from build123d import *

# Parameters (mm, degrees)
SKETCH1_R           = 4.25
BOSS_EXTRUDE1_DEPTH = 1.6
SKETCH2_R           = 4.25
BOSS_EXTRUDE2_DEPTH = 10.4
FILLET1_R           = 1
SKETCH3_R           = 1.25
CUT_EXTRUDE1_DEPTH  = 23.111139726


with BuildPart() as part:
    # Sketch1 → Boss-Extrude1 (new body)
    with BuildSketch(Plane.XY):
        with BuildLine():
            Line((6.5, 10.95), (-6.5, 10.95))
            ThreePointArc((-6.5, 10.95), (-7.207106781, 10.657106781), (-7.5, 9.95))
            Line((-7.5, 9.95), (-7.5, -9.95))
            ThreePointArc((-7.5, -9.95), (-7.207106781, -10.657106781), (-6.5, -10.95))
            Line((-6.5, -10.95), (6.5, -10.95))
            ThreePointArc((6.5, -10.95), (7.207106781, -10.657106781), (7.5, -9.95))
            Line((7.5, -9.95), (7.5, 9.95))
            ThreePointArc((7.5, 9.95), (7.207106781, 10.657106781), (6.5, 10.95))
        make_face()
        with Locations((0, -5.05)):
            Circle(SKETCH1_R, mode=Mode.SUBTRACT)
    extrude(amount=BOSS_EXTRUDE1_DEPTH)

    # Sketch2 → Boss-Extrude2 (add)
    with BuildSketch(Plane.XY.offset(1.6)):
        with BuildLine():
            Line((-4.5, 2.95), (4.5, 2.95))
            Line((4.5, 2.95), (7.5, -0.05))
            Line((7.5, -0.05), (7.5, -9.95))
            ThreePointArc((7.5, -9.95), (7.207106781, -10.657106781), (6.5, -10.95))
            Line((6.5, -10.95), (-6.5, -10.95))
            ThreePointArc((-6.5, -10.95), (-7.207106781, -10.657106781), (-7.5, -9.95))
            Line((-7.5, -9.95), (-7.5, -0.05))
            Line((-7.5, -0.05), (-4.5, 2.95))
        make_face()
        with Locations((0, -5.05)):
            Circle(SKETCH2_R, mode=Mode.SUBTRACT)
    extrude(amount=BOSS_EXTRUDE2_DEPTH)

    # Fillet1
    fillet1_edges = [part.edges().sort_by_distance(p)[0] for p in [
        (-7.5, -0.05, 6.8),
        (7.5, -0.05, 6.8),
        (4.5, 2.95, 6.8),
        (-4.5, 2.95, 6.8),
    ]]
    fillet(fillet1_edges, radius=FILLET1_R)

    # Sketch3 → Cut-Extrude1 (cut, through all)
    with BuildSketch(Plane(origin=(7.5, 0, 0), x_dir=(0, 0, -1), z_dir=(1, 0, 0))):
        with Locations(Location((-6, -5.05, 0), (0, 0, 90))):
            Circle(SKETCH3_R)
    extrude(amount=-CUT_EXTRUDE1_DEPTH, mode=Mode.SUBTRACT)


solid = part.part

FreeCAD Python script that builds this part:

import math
import FreeCAD as App
import Part
import Sketcher


def edges_at(feature, points):
    """Names of the edges that pass closest to the given points."""
    edges = feature.Shape.Edges
    near = lambda p: min(range(len(edges)), key=lambda i: edges[i].distToShape(Part.Vertex(*p))[0])
    return sorted({f"Edge{near(p) + 1}" for p in points})

doc = App.newDocument("Part")
body = doc.addObject("PartDesign::Body", "Body")

sketch1 = body.newObject("Sketcher::SketchObject", "Sketch")
sketch1.AttachmentSupport = (doc.getObject("XY_Plane"), [""])
sketch1.MapMode = "FlatFace"
sketch1.addGeometry(Part.LineSegment(App.Vector(6.5, 10.9, 0), App.Vector(-6.5, 10.9, 0)), False)
sketch1.addGeometry(Part.ArcOfCircle(Part.Circle(App.Vector(-6.5, 9.9, 0), App.Vector(0, 0, 1), 1), math.radians(90), math.radians(180)), False)
sketch1.addGeometry(Part.LineSegment(App.Vector(-7.5, 9.9, 0), App.Vector(-7.5, -9.9, 0)), False)
sketch1.addGeometry(Part.ArcOfCircle(Part.Circle(App.Vector(-6.5, -9.9, 0), App.Vector(0, 0, 1), 1), math.radians(-180), math.radians(-90)), False)
sketch1.addGeometry(Part.LineSegment(App.Vector(-6.5, -10.9, 0), App.Vector(6.5, -10.9, 0)), False)
sketch1.addGeometry(Part.ArcOfCircle(Part.Circle(App.Vector(6.5, -9.9, 0), App.Vector(0, 0, 1), 1), math.radians(-90), math.radians(0)), False)
sketch1.addGeometry(Part.LineSegment(App.Vector(7.5, -9.9, 0), App.Vector(7.5, 9.9, 0)), False)
sketch1.addGeometry(Part.ArcOfCircle(Part.Circle(App.Vector(6.5, 9.9, 0), App.Vector(0, 0, 1), 1), math.radians(0), math.radians(90)), False)
sketch1.addGeometry(Part.Circle(App.Vector(0, -5, 0), App.Vector(0, 0, 1), 4.2), False)
sketch1.addConstraint(Sketcher.Constraint("Tangent", 0, 2, 1, 1))
sketch1.addConstraint(Sketcher.Constraint("Tangent", 1, 2, 2, 1))
sketch1.addConstraint(Sketcher.Constraint("Tangent", 2, 2, 3, 1))
sketch1.addConstraint(Sketcher.Constraint("Tangent", 3, 2, 4, 1))
sketch1.addConstraint(Sketcher.Constraint("Tangent", 4, 2, 5, 1))
sketch1.addConstraint(Sketcher.Constraint("Tangent", 5, 2, 6, 1))
sketch1.addConstraint(Sketcher.Constraint("Tangent", 6, 2, 7, 1))
sketch1.addConstraint(Sketcher.Constraint("Tangent", 7, 2, 0, 1))
sketch1.addConstraint(Sketcher.Constraint("Horizontal", 0))
sketch1.addConstraint(Sketcher.Constraint("Vertical", 2))
sketch1.addConstraint(Sketcher.Constraint("Horizontal", 4))
sketch1.addConstraint(Sketcher.Constraint("Vertical", 6))
sketch1.addConstraint(Sketcher.Constraint("Equal", 1, 3))
sketch1.addConstraint(Sketcher.Constraint("Equal", 3, 5))
sketch1.addConstraint(Sketcher.Constraint("Equal", 5, 7))
sketch1.addConstraint(Sketcher.Constraint("Symmetric", 1, 3, 5, 3, -1, 1))
sketch1.addConstraint(Sketcher.Constraint("PointOnObject", 8, 3, -2))
sketch1.addConstraint(Sketcher.Constraint("Radius", 1, 1.0))
sketch1.addConstraint(Sketcher.Constraint("Diameter", 8, 8.5))
sketch1.addConstraint(Sketcher.Constraint("DistanceX", 0, 2, 0, 1, 13.0))
sketch1.addConstraint(Sketcher.Constraint("DistanceY", 2, 2, 2, 1, 19.9))
sketch1.addConstraint(Sketcher.Constraint("DistanceY", 8, 3, 1, 3, 15.0))
pad1 = body.newObject("PartDesign::Pad", "Pad")
pad1.Profile = sketch1
pad1.Length = 1.6

sketch2 = body.newObject("Sketcher::SketchObject", "Sketch001")
sketch2.AttachmentSupport = (doc.getObject("XY_Plane"), [""])
sketch2.MapMode = "FlatFace"
sketch2.AttachmentOffset = App.Placement(App.Vector(0, 0, 1.6), App.Rotation())
sketch2.addGeometry(Part.LineSegment(App.Vector(4.5, 3, 0), App.Vector(-4.5, 3, 0)), False)
sketch2.addGeometry(Part.LineSegment(App.Vector(-4.5, 3, 0), App.Vector(-7.5, -0.1, 0)), False)
sketch2.addGeometry(Part.LineSegment(App.Vector(-7.5, -0.1, 0), App.Vector(-7.5, -9.9, 0)), False)
sketch2.addGeometry(Part.ArcOfCircle(Part.Circle(App.Vector(-6.5, -9.9, 0), App.Vector(0, 0, 1), 1), math.radians(-180), math.radians(-90)), False)
sketch2.addGeometry(Part.LineSegment(App.Vector(-6.5, -10.9, 0), App.Vector(6.5, -10.9, 0)), False)
sketch2.addGeometry(Part.ArcOfCircle(Part.Circle(App.Vector(6.5, -9.9, 0), App.Vector(0, 0, 1), 1), math.radians(-90), math.radians(0)), False)
sketch2.addGeometry(Part.LineSegment(App.Vector(7.5, -9.9, 0), App.Vector(7.5, -0.1, 0)), False)
sketch2.addGeometry(Part.LineSegment(App.Vector(7.5, -0.1, 0), App.Vector(4.5, 3, 0)), False)
sketch2.addGeometry(Part.Circle(App.Vector(0, -5, 0), App.Vector(0, 0, 1), 4.2), False)
sketch2.addConstraint(Sketcher.Constraint("Coincident", 0, 2, 1, 1))
sketch2.addConstraint(Sketcher.Constraint("Coincident", 1, 2, 2, 1))
sketch2.addConstraint(Sketcher.Constraint("Tangent", 2, 2, 3, 1))
sketch2.addConstraint(Sketcher.Constraint("Tangent", 3, 2, 4, 1))
sketch2.addConstraint(Sketcher.Constraint("Tangent", 4, 2, 5, 1))
sketch2.addConstraint(Sketcher.Constraint("Tangent", 5, 2, 6, 1))
sketch2.addConstraint(Sketcher.Constraint("Coincident", 6, 2, 7, 1))
sketch2.addConstraint(Sketcher.Constraint("Coincident", 7, 2, 0, 1))
sketch2.addConstraint(Sketcher.Constraint("Horizontal", 0))
sketch2.addConstraint(Sketcher.Constraint("Vertical", 2))
sketch2.addConstraint(Sketcher.Constraint("Horizontal", 4))
sketch2.addConstraint(Sketcher.Constraint("Vertical", 6))
sketch2.addConstraint(Sketcher.Constraint("Equal", 3, 5))
sketch2.addConstraint(Sketcher.Constraint("Symmetric", 1, 2, 6, 2, -2))
sketch2.addConstraint(Sketcher.Constraint("PointOnObject", 8, 3, -2))
sketch2.addConstraint(Sketcher.Constraint("Perpendicular", 1, 7))
sketch2.addConstraint(Sketcher.Constraint("Equal", 1, 7))
sketch2.addConstraint(Sketcher.Constraint("Radius", 3, 1.0))
sketch2.addConstraint(Sketcher.Constraint("Diameter", 8, 8.5))
sketch2.addConstraint(Sketcher.Constraint("DistanceX", 0, 2, 0, 1, 9.0))
sketch2.addConstraint(Sketcher.Constraint("DistanceX", 4, 1, 4, 2, 13.0))
sketch2.addConstraint(Sketcher.Constraint("DistanceY", 2, 2, 2, 1, 9.9))
sketch2.addConstraint(Sketcher.Constraint("DistanceY", 8, 3, 0, 2, 8.0))
sketch2.addConstraint(Sketcher.Constraint("DistanceY", 3, 3, -1, 1, 9.95))
pad2 = body.newObject("PartDesign::Pad", "Pad001")
pad2.Profile = sketch2
pad2.Length = 10.4
doc.recompute()

fillet = body.newObject("PartDesign::Fillet", "Fillet")
fillet.Base = (pad2, edges_at(pad2, [
    (-7.5, -0.05, 6.8),
    (7.5, -0.05, 6.8),
    (4.5, 2.95, 6.8),
    (-4.5, 2.95, 6.8),
]))
fillet.Radius = 1

sketch3 = body.newObject("Sketcher::SketchObject", "Sketch002")
sketch3.AttachmentSupport = (doc.getObject("YZ_Plane"), [""])
sketch3.MapMode = "FlatFace"
sketch3.AttachmentOffset = App.Placement(App.Vector(0, 0, 7.5), App.Rotation())
sketch3.addGeometry(Part.Circle(App.Vector(-5, 6, 0), App.Vector(0, 0, 1), 1.2), False)
sketch3.addConstraint(Sketcher.Constraint("Diameter", 0, 2.5))
sketch3.addConstraint(Sketcher.Constraint("DistanceY", -1, 1, 0, 3, 6.0))
sketch3.addConstraint(Sketcher.Constraint("DistanceX", 0, 3, -1, 1, 5.05))
pocket1 = body.newObject("PartDesign::Pocket", "Pocket")
pocket1.Profile = sketch3
pocket1.Type = "ThroughAll"

doc.recompute()
